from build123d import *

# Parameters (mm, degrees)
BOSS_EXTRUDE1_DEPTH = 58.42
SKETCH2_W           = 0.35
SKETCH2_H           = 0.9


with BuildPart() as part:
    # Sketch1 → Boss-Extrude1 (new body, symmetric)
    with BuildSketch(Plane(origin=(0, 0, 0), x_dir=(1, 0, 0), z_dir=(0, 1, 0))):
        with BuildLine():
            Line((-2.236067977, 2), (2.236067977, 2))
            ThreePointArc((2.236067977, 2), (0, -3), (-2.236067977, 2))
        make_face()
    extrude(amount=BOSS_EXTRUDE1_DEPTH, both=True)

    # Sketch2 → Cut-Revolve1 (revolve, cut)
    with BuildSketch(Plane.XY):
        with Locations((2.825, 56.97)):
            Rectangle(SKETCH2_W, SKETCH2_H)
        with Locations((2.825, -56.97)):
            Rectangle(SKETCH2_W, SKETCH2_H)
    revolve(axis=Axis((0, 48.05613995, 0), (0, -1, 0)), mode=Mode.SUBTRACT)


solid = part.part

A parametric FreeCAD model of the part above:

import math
import FreeCAD as App
import Part
import Sketcher
from FreeCAD import Vector

doc = App.newDocument("Part")
body = doc.addObject("PartDesign::Body", "Body")

# Sketch on XZ plane
sketch1 = body.newObject("Sketcher::SketchObject", "Sketch")
sketch1.AttachmentSupport = (doc.getObject("XZ_Plane"), [""])
sketch1.MapMode = "FlatFace"
sketch1.addGeometry(Part.LineSegment(Vector(2.2, -2, 0), Vector(-2.2, -2, 0)), False)
sketch1.addGeometry(Part.ArcOfCircle(Part.Circle(Vector(0, 0, 0), Vector(0, 0, 1), 3), math.radians(-42), math.radians(222)), False)
sketch1.addConstraint(Sketcher.Constraint("Coincident", 0, 1, 1, 1))
sketch1.addConstraint(Sketcher.Constraint("Coincident", 1, 2, 0, 2))
sketch1.addConstraint(Sketcher.Constraint("Horizontal", 0))
sketch1.addConstraint(Sketcher.Constraint("Coincident", 1, 3, -1, 1))
sketch1.addConstraint(Sketcher.Constraint("Radius", 1, 3.0))
sketch1.addConstraint(Sketcher.Constraint("DistanceY", 0, 1, -1, 1, 2.0))
pad1 = body.newObject("PartDesign::Pad", "Pad")
pad1.Profile = sketch1
pad1.Length = 116.84
pad1.Midplane = True

# Sketch on XY plane
sketch2 = body.newObject("Sketcher::SketchObject", "Sketch001")
sketch2.AttachmentSupport = (doc.getObject("XY_Plane"), [""])
sketch2.MapMode = "FlatFace"
sketch2.addGeometry(Part.LineSegment(Vector(2.65, 57.42, 0), Vector(2.65, 56.52, 0)), False)
sketch2.addGeometry(Part.LineSegment(Vector(2.65, 56.52, 0), Vector(3, 56.52, 0)), False)
sketch2.addGeometry(Part.LineSegment(Vector(3, 56.52, 0), Vector(3, 57.42, 0)), False)
sketch2.addGeometry(Part.LineSegment(Vector(3, 57.42, 0), Vector(2.65, 57.42, 0)), False)
sketch2.addGeometry(Part.LineSegment(Vector(2.65, -56.52, 0), Vector(2.65, -57.42, 0)), False)
sketch2.addGeometry(Part.LineSegment(Vector(2.65, -57.42, 0), Vector(3, -57.42, 0)), False)
sketch2.addGeometry(Part.LineSegment(Vector(3, -57.42, 0), Vector(3, -56.52, 0)), False)
sketch2.addGeometry(Part.LineSegment(Vector(3, -56.52, 0), Vector(2.65, -56.52, 0)), False)
sketch2.addConstraint(Sketcher.Constraint("Coincident", 0, 2, 1, 1))
sketch2.addConstraint(Sketcher.Constraint("Coincident", 1, 2, 2, 1))
sketch2.addConstraint(Sketcher.Constraint("Coincident", 2, 2, 3, 1))
sketch2.addConstraint(Sketcher.Constraint("Coincident", 3, 2, 0, 1))
sketch2.addConstraint(Sketcher.Constraint("Coincident", 4, 2, 5, 1))
sketch2.addConstraint(Sketcher.Constraint("Coincident", 5, 2, 6, 1))
sketch2.addConstraint(Sketcher.Constraint("Coincident", 6, 2, 7, 1))
sketch2.addConstraint(Sketcher.Constraint("Coincident", 7, 2, 4, 1))
sketch2.addConstraint(Sketcher.Constraint("Vertical", 0))
sketch2.addConstraint(Sketcher.Constraint("Horizontal", 1))
sketch2.addConstraint(Sketcher.Constraint("Vertical", 2))
sketch2.addConstraint(Sketcher.Constraint("Horizontal", 3))
sketch2.addConstraint(Sketcher.Constraint("Vertical", 4))
sketch2.addConstraint(Sketcher.Constraint("Horizontal", 5))
sketch2.addConstraint(Sketcher.Constraint("Vertical", 6))
sketch2.addConstraint(Sketcher.Constraint("Horizontal", 7))
sketch2.addConstraint(Sketcher.Constraint("Symmetric", 3, 2, 4, 2, -1))
sketch2.addConstraint(Sketcher.Constraint("Symmetric", 1, 2, 6, 2, -1))
sketch2.addConstraint(Sketcher.Constraint("DistanceY", 0, 2, 0, 1, 0.9))
sketch2.addConstraint(Sketcher.Constraint("DistanceX", -1, 1, 1, 2, 3.0))
sketch2.addConstraint(Sketcher.Constraint("DistanceX", 1, 1, 1, 2, 0.35))
sketch2.addConstraint(Sketcher.Constraint("DistanceY", -1, 1, 0, 2, 56.52))
groove = body.newObject("PartDesign::Groove", "Groove")
groove.Profile = sketch2
groove.ReferenceAxis = (sketch2, ["V_Axis"])
groove.Angle = 360

doc.recompute()
